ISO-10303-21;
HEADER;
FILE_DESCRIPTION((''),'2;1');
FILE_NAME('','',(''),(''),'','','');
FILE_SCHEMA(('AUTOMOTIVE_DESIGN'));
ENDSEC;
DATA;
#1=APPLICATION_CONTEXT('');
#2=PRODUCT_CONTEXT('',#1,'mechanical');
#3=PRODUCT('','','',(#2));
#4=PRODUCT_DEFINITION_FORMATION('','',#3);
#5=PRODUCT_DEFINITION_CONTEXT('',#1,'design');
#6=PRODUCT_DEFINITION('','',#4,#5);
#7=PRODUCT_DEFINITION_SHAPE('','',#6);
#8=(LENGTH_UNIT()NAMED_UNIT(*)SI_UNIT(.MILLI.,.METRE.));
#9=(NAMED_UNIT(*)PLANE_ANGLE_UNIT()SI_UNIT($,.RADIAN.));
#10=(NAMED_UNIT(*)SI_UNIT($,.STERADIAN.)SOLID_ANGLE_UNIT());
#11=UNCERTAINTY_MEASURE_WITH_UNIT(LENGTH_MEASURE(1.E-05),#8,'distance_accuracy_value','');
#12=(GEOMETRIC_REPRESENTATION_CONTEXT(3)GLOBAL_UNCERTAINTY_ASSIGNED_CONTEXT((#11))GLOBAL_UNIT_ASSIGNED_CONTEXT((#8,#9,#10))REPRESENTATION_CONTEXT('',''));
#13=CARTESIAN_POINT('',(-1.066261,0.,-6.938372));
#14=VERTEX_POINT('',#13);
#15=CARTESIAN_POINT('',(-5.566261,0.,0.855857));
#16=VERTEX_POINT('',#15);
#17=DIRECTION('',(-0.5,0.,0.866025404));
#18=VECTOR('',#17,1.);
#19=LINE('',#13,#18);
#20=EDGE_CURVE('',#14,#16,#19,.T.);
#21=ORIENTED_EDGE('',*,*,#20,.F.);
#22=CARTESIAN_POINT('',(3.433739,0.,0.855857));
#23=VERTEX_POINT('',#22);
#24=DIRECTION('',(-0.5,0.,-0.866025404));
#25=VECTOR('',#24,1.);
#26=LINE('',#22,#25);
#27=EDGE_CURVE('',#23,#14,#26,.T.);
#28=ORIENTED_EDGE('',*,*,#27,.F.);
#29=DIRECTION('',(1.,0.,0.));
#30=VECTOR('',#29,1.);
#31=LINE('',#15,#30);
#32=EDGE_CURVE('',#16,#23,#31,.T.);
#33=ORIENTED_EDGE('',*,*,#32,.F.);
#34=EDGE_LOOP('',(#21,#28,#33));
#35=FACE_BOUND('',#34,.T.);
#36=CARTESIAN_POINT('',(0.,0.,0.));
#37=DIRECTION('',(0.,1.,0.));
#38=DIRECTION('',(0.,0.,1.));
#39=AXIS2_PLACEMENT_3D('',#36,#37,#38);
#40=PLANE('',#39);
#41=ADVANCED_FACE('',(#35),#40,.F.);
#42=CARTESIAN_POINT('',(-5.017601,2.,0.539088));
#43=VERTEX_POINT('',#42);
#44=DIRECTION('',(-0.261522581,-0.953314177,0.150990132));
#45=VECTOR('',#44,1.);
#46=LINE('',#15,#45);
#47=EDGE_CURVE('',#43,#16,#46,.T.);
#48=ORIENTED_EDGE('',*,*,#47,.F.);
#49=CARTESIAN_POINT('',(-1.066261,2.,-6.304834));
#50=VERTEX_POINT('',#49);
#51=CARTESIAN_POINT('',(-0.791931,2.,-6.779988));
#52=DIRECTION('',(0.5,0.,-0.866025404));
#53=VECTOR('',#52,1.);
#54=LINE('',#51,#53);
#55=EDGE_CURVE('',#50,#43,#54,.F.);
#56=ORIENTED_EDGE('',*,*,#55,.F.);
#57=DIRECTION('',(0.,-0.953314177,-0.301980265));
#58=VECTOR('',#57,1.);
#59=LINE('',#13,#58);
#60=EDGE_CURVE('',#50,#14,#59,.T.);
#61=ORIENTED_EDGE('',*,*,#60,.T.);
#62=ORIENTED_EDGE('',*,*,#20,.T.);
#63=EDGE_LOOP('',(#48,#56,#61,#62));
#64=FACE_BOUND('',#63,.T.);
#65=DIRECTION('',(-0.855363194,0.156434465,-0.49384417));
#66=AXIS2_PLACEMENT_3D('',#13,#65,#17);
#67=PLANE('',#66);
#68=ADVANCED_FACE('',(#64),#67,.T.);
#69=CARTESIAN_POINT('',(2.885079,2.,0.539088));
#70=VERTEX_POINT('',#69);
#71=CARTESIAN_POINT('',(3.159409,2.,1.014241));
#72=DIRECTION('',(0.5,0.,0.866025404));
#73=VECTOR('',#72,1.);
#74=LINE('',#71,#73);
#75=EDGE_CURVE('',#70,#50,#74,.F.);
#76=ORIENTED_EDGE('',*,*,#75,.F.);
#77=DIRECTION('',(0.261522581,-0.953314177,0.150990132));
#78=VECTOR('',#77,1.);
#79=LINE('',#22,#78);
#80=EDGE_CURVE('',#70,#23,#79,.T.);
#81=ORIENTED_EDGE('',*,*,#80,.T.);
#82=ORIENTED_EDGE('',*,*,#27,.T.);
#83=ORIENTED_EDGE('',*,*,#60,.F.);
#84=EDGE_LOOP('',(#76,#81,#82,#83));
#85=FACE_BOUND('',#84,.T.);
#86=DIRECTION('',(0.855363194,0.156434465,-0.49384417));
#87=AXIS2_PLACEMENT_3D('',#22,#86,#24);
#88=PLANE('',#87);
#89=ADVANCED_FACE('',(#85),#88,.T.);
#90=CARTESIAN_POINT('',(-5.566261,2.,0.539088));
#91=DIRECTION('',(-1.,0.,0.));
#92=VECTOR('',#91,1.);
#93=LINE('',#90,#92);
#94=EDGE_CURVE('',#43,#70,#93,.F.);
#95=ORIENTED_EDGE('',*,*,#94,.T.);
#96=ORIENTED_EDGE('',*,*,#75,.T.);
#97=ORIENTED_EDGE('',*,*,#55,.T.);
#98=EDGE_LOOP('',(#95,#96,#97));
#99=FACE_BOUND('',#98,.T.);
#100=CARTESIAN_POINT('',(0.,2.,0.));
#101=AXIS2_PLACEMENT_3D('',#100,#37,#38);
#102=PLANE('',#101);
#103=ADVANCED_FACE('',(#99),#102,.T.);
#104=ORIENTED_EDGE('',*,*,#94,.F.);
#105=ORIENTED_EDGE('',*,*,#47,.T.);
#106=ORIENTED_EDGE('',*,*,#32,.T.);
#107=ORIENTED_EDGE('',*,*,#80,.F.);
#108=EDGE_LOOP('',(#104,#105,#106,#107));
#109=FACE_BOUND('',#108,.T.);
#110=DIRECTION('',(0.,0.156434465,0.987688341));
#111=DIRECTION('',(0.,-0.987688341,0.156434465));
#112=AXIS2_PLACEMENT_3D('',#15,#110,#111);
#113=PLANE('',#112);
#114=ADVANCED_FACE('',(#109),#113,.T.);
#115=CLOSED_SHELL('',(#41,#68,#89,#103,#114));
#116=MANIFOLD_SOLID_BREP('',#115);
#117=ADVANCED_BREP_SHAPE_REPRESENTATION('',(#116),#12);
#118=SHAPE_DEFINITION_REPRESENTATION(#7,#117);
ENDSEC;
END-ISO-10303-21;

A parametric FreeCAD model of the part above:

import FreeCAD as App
import Part
import Sketcher
from FreeCAD import Vector
Q = App.Units.Quantity

doc = App.newDocument("Part")
body = doc.addObject("PartDesign::Body", "Body")

# Sketch on XZ plane
sketch1 = body.newObject("Sketcher::SketchObject", "Sketch")
sketch1.AttachmentSupport = (doc.getObject("XZ_Plane"), [""])
sketch1.MapMode = "FlatFace"
sketch1.addGeometry([
    Part.LineSegment(Vector(3.433739, 0.855857, 0), Vector(-1.066261, -6.938372, 0)),
    Part.LineSegment(Vector(-1.066261, -6.938372, 0), Vector(-5.566261, 0.855857, 0)),
    Part.LineSegment(Vector(-5.566261, 0.855857, 0), Vector(3.433739, 0.855857, 0)),
], False)
sketch1.addConstraint([
    Sketcher.Constraint("Coincident", 0, 2, 1, 1),
    Sketcher.Constraint("Coincident", 1, 2, 2, 1),
    Sketcher.Constraint("Coincident", 2, 2, 0, 1),
    Sketcher.Constraint("Horizontal", 2),
    Sketcher.Constraint("Equal", 0, 1),
    Sketcher.Constraint("DistanceX", 2, 1, 2, 2, Q("9 mm")),
    Sketcher.Constraint("Angle", 0, Q("-120 deg")),
    Sketcher.Constraint("DistanceX", 0, 2, -1, 1, Q("1.066261 mm")),
    Sketcher.Constraint("DistanceY", 0, 2, -1, 1, Q("6.938372 mm")),
])
pad1 = body.newObject("PartDesign::Pad", "Pad")
pad1.Profile = sketch1
pad1.Length = 2
pad1.Reversed = True
pad1.TaperAngle = -9

doc.recompute()
